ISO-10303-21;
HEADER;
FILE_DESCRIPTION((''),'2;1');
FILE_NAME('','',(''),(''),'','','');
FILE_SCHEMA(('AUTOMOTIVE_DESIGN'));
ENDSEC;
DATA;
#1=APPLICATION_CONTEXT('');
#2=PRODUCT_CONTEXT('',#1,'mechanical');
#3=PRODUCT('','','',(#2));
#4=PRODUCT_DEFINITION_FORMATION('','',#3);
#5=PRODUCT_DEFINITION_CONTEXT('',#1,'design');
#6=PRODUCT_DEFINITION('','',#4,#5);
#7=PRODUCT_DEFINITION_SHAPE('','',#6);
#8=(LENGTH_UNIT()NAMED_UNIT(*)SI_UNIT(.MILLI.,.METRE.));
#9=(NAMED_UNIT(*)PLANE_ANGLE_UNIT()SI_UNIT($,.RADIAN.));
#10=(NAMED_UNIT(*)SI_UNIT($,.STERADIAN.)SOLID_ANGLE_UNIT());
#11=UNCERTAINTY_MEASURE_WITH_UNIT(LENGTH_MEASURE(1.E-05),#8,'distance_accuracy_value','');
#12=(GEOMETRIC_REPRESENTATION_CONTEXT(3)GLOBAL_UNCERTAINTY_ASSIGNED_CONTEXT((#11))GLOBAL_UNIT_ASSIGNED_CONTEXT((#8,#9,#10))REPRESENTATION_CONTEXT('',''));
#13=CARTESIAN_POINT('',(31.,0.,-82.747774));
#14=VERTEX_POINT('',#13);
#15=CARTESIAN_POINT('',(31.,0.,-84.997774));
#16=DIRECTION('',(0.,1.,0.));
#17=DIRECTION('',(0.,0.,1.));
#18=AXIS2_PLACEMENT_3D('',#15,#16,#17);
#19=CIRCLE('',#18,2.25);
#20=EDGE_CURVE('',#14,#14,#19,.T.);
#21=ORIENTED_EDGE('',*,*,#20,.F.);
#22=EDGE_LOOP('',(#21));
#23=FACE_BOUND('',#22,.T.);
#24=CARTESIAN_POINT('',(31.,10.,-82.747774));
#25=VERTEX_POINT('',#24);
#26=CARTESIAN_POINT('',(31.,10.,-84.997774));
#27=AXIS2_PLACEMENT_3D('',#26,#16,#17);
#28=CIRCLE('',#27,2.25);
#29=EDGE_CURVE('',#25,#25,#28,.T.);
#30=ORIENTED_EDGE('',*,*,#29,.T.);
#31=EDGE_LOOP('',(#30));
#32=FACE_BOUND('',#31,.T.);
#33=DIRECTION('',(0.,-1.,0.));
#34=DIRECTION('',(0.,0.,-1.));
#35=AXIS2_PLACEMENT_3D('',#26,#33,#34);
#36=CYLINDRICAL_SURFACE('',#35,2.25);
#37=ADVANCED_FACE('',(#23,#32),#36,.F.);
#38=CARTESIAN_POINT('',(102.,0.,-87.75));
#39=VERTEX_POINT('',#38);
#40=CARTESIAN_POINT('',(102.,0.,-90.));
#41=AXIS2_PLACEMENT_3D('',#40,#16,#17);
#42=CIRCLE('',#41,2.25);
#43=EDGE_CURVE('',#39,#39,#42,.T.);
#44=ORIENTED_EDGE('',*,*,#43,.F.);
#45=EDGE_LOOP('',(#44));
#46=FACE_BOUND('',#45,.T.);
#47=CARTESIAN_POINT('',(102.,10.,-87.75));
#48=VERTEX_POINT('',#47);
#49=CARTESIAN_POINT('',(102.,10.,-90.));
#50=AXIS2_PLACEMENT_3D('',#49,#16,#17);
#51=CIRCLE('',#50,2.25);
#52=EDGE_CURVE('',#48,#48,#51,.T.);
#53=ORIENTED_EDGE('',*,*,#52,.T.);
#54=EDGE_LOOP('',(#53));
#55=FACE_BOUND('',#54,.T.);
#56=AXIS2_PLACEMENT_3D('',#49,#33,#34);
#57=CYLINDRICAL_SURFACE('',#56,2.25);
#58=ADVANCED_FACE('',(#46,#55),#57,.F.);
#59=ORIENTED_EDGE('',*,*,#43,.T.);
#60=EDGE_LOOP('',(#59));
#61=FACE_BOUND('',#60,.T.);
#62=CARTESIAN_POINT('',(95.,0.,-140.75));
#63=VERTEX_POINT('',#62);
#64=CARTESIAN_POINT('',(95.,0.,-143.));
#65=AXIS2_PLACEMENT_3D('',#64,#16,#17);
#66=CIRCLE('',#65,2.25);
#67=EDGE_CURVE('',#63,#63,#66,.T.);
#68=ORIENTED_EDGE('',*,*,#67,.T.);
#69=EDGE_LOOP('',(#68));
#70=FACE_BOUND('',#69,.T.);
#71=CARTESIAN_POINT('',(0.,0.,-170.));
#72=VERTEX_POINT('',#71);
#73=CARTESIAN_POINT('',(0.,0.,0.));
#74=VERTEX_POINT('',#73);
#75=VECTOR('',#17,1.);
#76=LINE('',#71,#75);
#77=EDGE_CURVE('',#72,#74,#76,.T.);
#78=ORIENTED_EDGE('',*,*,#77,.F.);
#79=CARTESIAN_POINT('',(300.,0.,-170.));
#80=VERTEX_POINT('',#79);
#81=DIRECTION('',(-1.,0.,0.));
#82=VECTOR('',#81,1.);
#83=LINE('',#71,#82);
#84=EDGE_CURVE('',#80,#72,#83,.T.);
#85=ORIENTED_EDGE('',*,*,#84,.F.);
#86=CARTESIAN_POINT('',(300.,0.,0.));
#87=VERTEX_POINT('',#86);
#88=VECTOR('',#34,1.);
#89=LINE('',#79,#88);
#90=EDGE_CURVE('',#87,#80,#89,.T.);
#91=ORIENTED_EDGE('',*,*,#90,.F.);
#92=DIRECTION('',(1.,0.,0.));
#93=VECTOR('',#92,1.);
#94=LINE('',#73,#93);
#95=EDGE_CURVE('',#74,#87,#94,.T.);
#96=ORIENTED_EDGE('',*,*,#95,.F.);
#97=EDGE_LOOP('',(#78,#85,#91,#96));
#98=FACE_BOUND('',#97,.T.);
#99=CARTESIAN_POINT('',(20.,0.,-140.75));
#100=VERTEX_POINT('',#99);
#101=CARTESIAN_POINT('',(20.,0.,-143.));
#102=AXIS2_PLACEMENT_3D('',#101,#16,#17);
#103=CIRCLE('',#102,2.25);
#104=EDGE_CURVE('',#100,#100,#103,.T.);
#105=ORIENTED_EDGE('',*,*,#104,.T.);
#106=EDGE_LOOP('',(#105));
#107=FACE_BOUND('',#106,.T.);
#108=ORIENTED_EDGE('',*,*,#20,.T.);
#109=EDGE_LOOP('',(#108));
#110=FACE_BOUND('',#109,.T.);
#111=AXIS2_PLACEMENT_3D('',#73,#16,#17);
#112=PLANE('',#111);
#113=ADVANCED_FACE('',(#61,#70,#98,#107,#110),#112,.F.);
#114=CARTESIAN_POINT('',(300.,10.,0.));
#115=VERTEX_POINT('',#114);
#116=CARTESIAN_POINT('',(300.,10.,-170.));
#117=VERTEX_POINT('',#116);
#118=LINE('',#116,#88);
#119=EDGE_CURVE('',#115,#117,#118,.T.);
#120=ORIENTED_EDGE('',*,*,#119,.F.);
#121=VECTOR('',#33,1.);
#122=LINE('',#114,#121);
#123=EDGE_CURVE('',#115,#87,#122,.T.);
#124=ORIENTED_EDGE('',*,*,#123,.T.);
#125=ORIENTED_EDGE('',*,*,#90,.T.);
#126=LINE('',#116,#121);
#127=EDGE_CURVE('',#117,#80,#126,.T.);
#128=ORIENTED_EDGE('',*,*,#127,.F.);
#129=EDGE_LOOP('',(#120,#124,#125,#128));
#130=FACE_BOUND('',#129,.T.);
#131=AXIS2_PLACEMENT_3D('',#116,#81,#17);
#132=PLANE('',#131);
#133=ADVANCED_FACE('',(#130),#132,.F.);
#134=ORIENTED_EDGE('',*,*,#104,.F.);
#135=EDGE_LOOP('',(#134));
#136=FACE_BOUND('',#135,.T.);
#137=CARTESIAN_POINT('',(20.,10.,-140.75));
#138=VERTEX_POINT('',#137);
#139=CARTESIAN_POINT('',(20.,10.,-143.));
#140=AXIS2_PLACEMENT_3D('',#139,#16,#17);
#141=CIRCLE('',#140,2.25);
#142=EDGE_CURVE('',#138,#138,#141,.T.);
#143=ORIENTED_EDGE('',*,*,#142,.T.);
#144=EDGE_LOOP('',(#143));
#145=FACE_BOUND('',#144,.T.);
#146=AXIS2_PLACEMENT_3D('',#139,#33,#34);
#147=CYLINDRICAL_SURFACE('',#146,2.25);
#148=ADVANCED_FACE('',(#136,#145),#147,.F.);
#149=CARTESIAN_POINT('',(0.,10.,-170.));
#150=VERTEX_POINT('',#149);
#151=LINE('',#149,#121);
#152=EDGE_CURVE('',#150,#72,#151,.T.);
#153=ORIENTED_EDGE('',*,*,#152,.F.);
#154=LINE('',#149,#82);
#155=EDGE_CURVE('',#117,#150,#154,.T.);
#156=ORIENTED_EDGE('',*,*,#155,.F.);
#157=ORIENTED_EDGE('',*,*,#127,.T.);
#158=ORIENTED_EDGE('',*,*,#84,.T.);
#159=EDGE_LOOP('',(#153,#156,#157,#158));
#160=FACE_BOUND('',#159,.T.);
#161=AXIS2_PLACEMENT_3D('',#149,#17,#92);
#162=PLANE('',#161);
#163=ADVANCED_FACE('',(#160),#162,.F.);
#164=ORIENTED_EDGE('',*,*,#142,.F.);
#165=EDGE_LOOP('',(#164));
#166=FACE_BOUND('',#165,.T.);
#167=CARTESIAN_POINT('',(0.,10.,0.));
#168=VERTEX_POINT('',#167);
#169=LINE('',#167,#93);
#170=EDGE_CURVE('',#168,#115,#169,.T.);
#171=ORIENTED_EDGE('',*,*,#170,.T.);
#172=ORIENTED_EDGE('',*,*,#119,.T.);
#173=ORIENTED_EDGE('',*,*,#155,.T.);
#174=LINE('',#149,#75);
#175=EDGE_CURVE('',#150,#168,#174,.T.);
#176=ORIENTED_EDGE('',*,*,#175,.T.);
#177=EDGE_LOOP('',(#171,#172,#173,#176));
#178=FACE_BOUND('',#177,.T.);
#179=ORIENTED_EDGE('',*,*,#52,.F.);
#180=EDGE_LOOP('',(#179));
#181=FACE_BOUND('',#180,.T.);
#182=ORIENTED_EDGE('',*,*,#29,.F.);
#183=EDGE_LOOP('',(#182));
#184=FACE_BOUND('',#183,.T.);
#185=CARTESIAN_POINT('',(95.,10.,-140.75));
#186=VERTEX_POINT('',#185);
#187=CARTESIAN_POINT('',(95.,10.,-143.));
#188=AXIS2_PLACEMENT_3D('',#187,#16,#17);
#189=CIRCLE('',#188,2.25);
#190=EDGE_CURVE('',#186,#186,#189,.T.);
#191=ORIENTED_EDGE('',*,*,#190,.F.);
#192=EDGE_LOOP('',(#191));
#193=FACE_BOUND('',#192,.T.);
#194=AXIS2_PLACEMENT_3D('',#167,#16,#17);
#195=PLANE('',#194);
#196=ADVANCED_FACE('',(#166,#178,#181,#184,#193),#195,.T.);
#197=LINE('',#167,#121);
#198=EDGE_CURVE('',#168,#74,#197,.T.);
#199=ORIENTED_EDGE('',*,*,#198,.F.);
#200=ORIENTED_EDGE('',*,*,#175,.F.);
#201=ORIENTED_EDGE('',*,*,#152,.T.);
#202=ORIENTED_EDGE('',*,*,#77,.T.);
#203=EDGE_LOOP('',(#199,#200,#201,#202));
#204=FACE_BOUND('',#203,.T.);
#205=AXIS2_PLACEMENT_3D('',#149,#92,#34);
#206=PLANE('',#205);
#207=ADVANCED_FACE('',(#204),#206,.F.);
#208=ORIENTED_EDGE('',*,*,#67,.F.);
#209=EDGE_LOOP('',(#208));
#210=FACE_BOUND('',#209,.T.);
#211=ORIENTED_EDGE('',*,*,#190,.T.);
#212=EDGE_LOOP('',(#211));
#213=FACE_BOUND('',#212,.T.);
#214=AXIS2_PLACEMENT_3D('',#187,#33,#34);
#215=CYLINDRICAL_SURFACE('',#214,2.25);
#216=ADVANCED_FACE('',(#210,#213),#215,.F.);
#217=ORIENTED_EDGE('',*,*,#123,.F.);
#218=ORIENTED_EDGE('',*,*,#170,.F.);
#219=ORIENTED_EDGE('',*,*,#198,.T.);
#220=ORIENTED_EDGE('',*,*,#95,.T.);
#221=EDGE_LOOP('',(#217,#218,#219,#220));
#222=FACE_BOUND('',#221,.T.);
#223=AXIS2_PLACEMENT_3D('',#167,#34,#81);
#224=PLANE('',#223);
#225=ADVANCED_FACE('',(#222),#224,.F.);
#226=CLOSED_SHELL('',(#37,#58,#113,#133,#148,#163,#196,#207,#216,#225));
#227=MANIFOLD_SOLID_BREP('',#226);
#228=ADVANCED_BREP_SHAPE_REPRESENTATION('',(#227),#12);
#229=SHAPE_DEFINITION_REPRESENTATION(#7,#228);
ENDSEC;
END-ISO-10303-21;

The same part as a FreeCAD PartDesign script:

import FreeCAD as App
import Part
import Sketcher

V = App.Vector
Q = App.Units.Quantity


def add_polygon(sketch, points):
    """Adds a closed chain of lines whose ends are joined by coincident constraints."""
    first, n = sketch.GeometryCount, len(points)
    for a, b in zip(points, points[1:] + points[:1]):
        sketch.addGeometry(Part.LineSegment(App.Vector(*a, 0), App.Vector(*b, 0)), False)
    for i in range(n):
        sketch.addConstraint(Sketcher.Constraint("Coincident", first + i, 2, first + (i + 1) % n, 1))

doc = App.newDocument("Part")
body = doc.addObject("PartDesign::Body", "Body")

sketch1 = body.newObject("Sketcher::SketchObject", "Sketch")
sketch1.AttachmentSupport = (doc.getObject("XZ_Plane"), [""])
sketch1.MapMode = "FlatFace"
add_polygon(sketch1, [(0, -170), (0, 0), (300, 0), (300, -170)])
sketch1.addGeometry(Part.Circle(V(31, -85, 0), V(0, 0, 1), 2.2), False)
sketch1.addGeometry(Part.Circle(V(102, -90, 0), V(0, 0, 1), 2.2), False)
sketch1.addGeometry(Part.Circle(V(20, -143, 0), V(0, 0, 1), 2.2), False)
sketch1.addGeometry(Part.Circle(V(95, -143, 0), V(0, 0, 1), 2.2), False)
sketch1.addConstraint(Sketcher.Constraint("Vertical", 0))
sketch1.addConstraint(Sketcher.Constraint("Horizontal", 1))
sketch1.addConstraint(Sketcher.Constraint("Vertical", 2))
sketch1.addConstraint(Sketcher.Constraint("Horizontal", 3))
sketch1.addConstraint(Sketcher.Constraint("Coincident", 0, 2, -1, 1))
sketch1.addConstraint(Sketcher.Constraint("Equal", 4, 5))
sketch1.addConstraint(Sketcher.Constraint("Equal", 5, 6))
sketch1.addConstraint(Sketcher.Constraint("Equal", 6, 7))
sketch1.addConstraint(Sketcher.Constraint("Horizontal", 6, 3, 7, 3))
sketch1.addConstraint(Sketcher.Constraint("Diameter", 4, Q("4.5 mm")))
sketch1.addConstraint(Sketcher.Constraint("DistanceX", 1, 1, 1, 2, Q("300 mm")))
sketch1.addConstraint(Sketcher.Constraint("DistanceY", 0, 1, 0, 2, Q("170 mm")))
sketch1.addConstraint(Sketcher.Constraint("DistanceX", -1, 1, 4, 3, Q("31 mm")))
sketch1.addConstraint(Sketcher.Constraint("DistanceX", -1, 1, 5, 3, Q("102 mm")))
sketch1.addConstraint(Sketcher.Constraint("DistanceY", 5, 3, -1, 1, Q("90 mm")))
sketch1.addConstraint(Sketcher.Constraint("DistanceX", -1, 1, 6, 3, Q("20 mm")))
sketch1.addConstraint(Sketcher.Constraint("DistanceY", 6, 3, -1, 1, Q("143 mm")))
sketch1.addConstraint(Sketcher.Constraint("DistanceX", -1, 1, 7, 3, Q("95 mm")))
sketch1.addConstraint(Sketcher.Constraint("DistanceY", 4, 3, -1, 1, Q("84.997774 mm")))
pad1 = body.newObject("PartDesign::Pad", "Pad")
pad1.Profile = sketch1
pad1.Length = 10
pad1.Reversed = True

doc.recompute()
